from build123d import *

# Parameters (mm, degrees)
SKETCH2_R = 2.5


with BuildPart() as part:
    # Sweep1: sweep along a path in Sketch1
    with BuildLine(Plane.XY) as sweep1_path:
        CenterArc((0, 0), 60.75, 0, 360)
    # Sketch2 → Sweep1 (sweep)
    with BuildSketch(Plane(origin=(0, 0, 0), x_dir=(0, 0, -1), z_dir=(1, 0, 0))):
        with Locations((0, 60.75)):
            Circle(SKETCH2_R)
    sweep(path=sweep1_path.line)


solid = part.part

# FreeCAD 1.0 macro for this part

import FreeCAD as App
import Part
import Sketcher
Q = App.Units.Quantity

doc = App.newDocument("Part")
body = doc.addObject("PartDesign::Body", "Body")

# Sketch on YZ plane
sketch1 = doc.addObject("Sketcher::SketchObject", "Sketch")
body.addObject(sketch1)
sketch1.AttachmentSupport = (doc.YZ_Plane, [""])
sketch1.MapMode = "FlatFace"
sketch1.addGeometry(Part.Circle(App.Vector(60.8, 0, 0), App.Vector(0, 0, 1), 2.5), False)
sketch1.addConstraint([
    Sketcher.Constraint("PointOnObject", 0, 3, -1),
    Sketcher.Constraint("Diameter", 0, Q("5 mm")),
    Sketcher.Constraint("DistanceX", -1, 1, 0, 3, Q("60.75 mm")),
])

# Sketch on XY plane
sketch2 = doc.addObject("Sketcher::SketchObject", "Sketch001")
body.addObject(sketch2)
sketch2.AttachmentSupport = (doc.XY_Plane, [""])
sketch2.MapMode = "FlatFace"
sketch2.addGeometry(Part.Circle(App.Vector(0, 0, 0), App.Vector(0, 0, 1), 61), False)
sketch2.addConstraint([
    Sketcher.Constraint("Coincident", 0, 3, -1, 1),
    Sketcher.Constraint("Diameter", 0, Q("121.5 mm")),
])
doc.recompute()

additivepipe = doc.addObject("PartDesign::AdditivePipe", "AdditivePipe")
body.addObject(additivepipe)
additivepipe.Profile = sketch1
additivepipe.Spine = (sketch2, ["Edge1"])

doc.recompute()
